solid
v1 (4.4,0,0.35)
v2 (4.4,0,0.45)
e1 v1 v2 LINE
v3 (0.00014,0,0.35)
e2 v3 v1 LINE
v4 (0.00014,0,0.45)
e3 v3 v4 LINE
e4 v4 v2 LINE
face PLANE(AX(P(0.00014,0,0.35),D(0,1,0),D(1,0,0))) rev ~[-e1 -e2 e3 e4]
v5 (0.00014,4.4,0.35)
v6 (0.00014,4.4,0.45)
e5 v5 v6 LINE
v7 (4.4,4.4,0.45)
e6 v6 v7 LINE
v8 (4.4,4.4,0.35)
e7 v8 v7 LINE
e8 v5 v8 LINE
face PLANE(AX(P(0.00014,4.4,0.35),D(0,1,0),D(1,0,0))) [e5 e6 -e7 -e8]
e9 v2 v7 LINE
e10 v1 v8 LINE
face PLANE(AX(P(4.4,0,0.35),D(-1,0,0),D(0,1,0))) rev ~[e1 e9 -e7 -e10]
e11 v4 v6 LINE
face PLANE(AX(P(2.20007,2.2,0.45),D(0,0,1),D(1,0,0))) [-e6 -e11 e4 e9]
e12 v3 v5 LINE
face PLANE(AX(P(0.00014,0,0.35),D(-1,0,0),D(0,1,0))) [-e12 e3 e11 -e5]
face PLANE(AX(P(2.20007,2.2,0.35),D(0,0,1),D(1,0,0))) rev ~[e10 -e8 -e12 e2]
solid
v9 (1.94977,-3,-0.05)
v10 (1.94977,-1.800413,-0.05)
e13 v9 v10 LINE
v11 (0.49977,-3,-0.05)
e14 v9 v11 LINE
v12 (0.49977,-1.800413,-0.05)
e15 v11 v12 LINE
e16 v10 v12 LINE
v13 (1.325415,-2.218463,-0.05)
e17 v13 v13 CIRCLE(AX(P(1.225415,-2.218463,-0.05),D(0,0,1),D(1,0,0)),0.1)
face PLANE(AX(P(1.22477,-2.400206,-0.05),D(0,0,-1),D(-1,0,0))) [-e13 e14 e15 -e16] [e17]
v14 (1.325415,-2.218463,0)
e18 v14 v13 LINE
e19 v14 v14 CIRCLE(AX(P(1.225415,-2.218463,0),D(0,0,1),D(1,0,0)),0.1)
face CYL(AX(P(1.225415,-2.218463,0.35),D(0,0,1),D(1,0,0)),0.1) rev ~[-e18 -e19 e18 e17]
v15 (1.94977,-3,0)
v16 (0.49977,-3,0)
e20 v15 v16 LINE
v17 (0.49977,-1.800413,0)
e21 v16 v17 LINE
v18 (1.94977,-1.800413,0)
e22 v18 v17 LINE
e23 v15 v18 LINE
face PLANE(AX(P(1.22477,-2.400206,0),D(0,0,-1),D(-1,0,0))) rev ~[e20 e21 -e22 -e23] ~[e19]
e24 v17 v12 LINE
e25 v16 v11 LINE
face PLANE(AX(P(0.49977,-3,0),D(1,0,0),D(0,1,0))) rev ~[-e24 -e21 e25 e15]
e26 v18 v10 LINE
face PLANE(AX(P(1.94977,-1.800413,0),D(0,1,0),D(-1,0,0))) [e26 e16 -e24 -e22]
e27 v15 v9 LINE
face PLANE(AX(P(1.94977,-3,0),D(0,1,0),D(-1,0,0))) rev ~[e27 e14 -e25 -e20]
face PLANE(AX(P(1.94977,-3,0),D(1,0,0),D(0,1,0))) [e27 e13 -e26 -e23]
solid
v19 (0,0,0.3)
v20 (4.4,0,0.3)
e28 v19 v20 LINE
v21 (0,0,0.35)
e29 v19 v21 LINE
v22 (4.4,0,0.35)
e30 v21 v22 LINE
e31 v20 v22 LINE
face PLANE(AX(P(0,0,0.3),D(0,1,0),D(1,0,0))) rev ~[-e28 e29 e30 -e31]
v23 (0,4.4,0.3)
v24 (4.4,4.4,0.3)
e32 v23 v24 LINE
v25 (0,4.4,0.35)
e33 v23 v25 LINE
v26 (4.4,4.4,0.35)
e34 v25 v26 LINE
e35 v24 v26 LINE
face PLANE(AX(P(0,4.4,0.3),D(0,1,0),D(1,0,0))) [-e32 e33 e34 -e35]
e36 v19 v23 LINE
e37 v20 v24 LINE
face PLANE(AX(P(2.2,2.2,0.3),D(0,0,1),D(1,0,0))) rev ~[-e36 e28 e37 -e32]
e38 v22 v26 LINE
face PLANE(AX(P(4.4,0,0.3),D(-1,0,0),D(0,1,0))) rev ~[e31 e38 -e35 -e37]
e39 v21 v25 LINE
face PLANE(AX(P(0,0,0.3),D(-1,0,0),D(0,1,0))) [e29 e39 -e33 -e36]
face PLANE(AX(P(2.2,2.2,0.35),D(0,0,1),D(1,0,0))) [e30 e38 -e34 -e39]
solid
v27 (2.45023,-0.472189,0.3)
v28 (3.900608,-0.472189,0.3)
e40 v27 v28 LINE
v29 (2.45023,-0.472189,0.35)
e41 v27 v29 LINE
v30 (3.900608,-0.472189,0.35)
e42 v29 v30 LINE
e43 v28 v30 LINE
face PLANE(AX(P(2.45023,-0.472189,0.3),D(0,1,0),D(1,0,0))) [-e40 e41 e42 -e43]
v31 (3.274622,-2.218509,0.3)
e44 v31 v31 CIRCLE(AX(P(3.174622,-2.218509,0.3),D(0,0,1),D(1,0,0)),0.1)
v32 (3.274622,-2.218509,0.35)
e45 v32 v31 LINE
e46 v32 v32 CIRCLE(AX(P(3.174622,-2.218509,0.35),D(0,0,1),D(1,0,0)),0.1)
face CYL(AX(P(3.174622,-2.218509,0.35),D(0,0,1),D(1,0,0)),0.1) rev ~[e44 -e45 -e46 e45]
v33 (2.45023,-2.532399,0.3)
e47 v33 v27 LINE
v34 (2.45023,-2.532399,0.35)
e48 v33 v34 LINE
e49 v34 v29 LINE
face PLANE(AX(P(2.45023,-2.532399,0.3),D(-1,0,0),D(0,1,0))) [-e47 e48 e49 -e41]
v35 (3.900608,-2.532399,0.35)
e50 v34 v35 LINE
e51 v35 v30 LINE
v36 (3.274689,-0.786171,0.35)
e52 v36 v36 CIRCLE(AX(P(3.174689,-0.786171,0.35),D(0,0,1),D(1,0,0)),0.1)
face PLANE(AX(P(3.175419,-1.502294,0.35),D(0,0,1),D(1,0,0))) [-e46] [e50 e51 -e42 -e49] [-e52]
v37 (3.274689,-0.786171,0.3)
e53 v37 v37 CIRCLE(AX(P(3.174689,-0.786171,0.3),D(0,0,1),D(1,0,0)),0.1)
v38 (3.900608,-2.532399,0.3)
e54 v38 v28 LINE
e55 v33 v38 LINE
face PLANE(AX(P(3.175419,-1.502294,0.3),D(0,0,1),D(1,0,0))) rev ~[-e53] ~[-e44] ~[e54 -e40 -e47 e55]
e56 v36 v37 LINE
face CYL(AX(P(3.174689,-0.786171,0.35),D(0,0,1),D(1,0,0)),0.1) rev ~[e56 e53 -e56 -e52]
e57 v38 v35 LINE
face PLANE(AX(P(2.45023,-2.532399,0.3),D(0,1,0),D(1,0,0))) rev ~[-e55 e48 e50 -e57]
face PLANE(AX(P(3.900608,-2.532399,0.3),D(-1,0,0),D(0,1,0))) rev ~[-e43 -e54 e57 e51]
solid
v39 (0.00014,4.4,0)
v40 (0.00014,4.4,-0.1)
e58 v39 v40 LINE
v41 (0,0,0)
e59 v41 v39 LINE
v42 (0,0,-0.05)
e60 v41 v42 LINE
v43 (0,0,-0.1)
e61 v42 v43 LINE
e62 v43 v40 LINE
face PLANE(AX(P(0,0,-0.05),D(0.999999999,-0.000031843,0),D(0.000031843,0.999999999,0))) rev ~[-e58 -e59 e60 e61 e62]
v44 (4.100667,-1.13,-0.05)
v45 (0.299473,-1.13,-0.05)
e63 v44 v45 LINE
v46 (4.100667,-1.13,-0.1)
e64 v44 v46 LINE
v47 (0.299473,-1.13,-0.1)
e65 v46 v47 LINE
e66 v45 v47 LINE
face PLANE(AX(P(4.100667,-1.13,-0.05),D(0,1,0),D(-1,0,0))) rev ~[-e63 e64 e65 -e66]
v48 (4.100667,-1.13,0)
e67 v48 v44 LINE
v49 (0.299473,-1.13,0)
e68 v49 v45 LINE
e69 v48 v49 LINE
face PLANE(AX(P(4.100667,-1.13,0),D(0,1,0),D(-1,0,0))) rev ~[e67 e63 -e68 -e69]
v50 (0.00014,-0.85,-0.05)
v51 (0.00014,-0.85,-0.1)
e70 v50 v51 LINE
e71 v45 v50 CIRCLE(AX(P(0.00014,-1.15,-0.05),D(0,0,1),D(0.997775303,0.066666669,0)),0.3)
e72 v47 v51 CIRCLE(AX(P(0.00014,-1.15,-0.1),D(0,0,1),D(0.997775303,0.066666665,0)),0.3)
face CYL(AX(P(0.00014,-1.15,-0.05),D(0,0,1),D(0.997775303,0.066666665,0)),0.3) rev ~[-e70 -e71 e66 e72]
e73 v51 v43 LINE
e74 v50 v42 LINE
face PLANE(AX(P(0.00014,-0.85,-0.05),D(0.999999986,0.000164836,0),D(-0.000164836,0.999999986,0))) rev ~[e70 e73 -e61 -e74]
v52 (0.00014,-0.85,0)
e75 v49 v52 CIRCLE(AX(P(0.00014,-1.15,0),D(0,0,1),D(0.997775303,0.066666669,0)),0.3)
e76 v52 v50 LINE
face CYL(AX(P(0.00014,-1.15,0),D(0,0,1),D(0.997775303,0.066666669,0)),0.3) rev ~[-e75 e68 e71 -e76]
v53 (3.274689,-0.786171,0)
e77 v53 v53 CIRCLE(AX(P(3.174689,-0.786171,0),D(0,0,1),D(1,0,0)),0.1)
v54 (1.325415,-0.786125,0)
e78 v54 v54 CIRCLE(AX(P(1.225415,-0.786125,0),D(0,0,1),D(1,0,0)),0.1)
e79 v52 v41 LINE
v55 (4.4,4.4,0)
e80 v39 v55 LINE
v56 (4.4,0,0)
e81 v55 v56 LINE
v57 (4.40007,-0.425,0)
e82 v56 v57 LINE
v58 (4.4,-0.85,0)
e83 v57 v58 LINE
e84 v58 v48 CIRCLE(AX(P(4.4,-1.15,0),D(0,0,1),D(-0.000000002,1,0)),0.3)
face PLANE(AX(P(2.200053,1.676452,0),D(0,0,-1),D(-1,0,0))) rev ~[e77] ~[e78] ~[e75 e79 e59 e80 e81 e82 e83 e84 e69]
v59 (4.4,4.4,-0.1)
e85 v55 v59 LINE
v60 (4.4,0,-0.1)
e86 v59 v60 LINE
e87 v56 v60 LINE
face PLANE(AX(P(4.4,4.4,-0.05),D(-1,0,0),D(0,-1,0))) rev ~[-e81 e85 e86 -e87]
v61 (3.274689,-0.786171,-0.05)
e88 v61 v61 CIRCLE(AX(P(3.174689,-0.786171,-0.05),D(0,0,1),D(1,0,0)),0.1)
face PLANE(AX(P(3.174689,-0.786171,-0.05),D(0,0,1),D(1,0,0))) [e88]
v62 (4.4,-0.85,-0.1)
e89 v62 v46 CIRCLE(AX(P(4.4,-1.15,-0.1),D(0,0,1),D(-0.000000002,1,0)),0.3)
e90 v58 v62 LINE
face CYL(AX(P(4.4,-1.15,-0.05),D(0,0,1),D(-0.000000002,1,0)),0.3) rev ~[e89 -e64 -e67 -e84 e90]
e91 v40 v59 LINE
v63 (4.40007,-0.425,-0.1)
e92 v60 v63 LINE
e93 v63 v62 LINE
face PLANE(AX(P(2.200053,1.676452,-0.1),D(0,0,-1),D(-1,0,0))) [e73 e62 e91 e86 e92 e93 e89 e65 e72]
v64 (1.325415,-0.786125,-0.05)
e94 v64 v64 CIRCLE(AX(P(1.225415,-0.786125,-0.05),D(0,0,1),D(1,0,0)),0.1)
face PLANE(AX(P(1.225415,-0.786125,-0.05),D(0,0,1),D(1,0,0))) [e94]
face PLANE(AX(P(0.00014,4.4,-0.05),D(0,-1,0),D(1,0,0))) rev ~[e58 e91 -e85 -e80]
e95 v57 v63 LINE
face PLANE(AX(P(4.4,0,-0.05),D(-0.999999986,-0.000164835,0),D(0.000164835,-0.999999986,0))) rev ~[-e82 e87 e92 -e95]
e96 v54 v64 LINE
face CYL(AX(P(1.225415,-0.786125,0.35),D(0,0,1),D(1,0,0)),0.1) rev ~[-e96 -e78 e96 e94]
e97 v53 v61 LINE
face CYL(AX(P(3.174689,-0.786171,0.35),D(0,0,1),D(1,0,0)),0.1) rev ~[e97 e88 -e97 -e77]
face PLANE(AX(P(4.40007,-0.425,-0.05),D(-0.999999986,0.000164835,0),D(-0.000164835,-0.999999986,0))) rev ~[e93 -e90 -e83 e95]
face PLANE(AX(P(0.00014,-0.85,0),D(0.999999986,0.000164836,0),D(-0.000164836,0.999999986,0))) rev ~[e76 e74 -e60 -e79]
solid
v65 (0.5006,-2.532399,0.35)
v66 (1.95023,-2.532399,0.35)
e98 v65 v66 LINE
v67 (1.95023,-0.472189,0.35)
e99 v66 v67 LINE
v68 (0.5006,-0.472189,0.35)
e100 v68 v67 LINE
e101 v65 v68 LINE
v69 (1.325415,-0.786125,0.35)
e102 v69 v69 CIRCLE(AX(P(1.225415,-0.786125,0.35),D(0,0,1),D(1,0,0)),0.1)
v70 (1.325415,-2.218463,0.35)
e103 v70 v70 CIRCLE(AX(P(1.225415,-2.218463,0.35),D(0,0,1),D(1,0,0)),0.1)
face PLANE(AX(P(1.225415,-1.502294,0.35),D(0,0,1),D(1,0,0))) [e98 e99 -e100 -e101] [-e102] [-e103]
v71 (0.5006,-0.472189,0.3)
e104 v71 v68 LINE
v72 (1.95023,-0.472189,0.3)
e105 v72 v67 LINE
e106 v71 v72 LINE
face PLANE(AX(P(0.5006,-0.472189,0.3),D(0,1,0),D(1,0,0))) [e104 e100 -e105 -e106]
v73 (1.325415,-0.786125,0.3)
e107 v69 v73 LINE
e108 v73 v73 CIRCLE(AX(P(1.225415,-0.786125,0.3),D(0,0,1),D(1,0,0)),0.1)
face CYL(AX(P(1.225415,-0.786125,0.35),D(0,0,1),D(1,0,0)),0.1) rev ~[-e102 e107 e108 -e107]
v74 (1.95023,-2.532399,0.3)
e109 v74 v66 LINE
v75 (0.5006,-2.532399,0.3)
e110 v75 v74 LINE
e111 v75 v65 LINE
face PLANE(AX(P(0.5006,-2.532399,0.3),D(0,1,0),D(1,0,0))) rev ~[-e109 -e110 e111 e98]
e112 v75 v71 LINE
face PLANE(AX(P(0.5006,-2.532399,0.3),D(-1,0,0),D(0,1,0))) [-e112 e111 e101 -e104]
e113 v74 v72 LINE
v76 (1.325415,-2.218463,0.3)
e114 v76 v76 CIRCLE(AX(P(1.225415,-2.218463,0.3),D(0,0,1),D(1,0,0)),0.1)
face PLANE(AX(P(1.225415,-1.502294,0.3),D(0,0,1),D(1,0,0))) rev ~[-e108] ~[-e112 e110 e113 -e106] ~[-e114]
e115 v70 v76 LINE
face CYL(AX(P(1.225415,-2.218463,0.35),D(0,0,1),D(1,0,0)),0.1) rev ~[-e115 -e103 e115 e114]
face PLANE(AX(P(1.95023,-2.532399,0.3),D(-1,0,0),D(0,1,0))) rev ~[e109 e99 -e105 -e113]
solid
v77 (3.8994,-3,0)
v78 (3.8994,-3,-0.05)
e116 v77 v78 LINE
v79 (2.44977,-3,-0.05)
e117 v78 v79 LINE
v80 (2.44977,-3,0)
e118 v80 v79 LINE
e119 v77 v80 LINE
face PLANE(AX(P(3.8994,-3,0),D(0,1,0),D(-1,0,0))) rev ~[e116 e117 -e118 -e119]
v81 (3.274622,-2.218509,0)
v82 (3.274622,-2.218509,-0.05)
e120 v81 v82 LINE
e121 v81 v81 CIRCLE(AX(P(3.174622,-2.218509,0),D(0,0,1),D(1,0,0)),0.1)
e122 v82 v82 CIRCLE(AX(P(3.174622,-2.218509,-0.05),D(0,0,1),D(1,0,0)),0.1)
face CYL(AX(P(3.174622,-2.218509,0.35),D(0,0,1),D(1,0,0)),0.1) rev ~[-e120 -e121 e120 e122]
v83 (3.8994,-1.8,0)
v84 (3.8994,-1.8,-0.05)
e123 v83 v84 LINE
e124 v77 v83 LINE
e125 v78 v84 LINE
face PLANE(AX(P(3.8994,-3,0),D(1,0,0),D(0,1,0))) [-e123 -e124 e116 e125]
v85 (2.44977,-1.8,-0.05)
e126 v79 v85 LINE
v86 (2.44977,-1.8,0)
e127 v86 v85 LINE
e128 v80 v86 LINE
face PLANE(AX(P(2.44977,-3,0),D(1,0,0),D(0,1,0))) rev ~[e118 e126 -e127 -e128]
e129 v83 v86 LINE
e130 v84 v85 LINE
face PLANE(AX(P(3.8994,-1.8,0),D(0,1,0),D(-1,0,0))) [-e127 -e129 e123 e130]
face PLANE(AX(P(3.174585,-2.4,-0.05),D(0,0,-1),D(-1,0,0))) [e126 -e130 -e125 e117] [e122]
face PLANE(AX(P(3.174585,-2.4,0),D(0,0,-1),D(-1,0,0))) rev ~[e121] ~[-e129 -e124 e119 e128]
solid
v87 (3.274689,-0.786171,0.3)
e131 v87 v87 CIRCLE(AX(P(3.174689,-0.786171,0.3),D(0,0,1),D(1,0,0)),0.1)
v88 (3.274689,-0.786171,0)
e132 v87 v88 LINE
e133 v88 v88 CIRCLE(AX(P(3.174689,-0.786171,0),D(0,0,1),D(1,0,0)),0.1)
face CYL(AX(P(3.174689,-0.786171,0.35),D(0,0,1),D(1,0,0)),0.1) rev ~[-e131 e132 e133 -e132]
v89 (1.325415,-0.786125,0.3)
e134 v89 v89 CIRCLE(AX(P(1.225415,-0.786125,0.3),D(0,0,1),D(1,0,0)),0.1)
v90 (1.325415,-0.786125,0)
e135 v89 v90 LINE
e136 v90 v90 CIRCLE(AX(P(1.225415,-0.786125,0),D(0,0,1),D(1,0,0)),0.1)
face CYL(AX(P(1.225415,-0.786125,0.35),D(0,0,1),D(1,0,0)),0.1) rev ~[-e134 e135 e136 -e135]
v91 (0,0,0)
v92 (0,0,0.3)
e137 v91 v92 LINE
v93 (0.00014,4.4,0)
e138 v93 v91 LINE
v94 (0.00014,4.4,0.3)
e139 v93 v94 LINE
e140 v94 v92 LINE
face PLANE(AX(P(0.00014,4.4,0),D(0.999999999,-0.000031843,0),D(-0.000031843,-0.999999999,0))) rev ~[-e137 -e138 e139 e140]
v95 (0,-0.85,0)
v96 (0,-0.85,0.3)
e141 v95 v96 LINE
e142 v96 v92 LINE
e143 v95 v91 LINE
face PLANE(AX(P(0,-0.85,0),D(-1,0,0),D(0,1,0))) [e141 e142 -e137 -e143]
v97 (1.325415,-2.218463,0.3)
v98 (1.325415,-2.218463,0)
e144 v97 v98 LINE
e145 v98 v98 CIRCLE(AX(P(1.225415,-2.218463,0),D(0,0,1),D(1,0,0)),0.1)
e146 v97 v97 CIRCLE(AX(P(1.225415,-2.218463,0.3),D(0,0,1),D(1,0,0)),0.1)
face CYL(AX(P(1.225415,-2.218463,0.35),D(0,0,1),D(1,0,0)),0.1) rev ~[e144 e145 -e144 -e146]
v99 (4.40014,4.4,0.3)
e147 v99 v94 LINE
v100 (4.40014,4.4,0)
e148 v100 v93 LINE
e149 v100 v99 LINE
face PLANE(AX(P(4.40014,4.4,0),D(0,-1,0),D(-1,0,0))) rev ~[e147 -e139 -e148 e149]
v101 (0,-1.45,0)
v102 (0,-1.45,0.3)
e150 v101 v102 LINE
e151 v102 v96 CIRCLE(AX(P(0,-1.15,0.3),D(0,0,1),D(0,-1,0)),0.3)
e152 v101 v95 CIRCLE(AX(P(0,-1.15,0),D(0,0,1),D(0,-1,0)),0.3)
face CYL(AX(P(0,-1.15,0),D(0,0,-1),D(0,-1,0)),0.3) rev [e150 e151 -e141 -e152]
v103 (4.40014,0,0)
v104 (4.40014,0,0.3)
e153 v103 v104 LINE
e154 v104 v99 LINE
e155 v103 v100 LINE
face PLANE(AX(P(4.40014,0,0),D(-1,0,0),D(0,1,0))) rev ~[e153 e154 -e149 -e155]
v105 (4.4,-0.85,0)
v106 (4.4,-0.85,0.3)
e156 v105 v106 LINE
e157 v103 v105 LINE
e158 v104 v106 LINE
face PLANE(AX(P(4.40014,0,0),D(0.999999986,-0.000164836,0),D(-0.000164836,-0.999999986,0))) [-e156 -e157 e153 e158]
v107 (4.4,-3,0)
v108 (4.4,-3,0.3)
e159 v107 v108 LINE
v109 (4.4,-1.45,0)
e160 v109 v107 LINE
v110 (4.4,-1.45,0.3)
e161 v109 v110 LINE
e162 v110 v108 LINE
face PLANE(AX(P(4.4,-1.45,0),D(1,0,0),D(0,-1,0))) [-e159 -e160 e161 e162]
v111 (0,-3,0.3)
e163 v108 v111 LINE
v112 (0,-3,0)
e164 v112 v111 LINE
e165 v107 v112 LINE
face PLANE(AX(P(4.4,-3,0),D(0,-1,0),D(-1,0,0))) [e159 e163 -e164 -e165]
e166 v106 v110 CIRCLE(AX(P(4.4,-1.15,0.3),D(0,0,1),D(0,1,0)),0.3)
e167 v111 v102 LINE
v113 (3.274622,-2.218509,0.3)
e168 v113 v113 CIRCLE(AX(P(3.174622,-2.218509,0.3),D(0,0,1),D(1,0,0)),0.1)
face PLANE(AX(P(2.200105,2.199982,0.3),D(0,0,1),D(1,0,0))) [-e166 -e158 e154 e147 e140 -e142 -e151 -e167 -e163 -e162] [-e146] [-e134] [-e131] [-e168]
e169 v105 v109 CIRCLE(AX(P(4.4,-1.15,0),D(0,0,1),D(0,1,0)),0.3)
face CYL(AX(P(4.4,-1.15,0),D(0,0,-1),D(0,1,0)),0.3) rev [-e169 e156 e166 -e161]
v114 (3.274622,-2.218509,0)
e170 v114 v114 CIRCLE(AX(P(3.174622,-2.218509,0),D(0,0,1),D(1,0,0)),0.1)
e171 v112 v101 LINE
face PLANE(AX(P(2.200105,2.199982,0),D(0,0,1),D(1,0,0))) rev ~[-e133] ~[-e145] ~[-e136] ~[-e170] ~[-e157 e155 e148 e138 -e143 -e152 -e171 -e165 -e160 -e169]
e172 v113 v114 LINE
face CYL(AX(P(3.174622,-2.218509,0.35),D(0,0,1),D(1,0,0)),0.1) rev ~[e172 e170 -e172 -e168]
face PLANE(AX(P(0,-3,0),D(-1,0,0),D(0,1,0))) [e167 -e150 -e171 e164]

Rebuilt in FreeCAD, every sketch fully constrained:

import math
import FreeCAD as App
import Part
import Sketcher
from FreeCAD import Vector
Q = App.Units.Quantity

doc = App.newDocument("Part")
body = doc.addObject("PartDesign::Body", "Body")

sketch1 = body.newObject("Sketcher::SketchObject", "Sketch")
sketch1.AttachmentSupport = (doc.getObject("XY_Plane"), [""])
sketch1.MapMode = "FlatFace"
sketch1.addGeometry(Part.LineSegment(Vector(0, 4.4, 0), Vector(0, 0, 0)), False)
sketch1.addGeometry(Part.LineSegment(Vector(0, 0, 0), Vector(0, -0.85, 0)), False)
sketch1.addGeometry(Part.ArcOfCircle(Part.Circle(Vector(0, -1.15, 0), Vector(0, 0, 1), 0.3), math.radians(-90), math.radians(90)), False)
sketch1.addGeometry(Part.LineSegment(Vector(0, -1.45, 0), Vector(0, -3, 0)), False)
sketch1.addGeometry(Part.LineSegment(Vector(0, -3, 0), Vector(4.4, -3, 0)), False)
sketch1.addGeometry(Part.LineSegment(Vector(4.4, -3, 0), Vector(4.4, -1.45, 0)), False)
sketch1.addGeometry(Part.ArcOfCircle(Part.Circle(Vector(4.4, -1.15, 0), Vector(0, 0, 1), 0.3), math.radians(90), math.radians(270)), False)
sketch1.addGeometry(Part.LineSegment(Vector(4.4, -0.85, 0), Vector(4.4, 0, 0)), False)
sketch1.addGeometry(Part.LineSegment(Vector(4.4, 0, 0), Vector(4.4, 4.4, 0)), False)
sketch1.addGeometry(Part.LineSegment(Vector(4.4, 4.4, 0), Vector(0, 4.4, 0)), False)
sketch1.addConstraint(Sketcher.Constraint("Coincident", 0, 2, 1, 1))
sketch1.addConstraint(Sketcher.Constraint("Coincident", 1, 2, 2, 2))
sketch1.addConstraint(Sketcher.Constraint("Coincident", 2, 1, 3, 1))
sketch1.addConstraint(Sketcher.Constraint("Coincident", 3, 2, 4, 1))
sketch1.addConstraint(Sketcher.Constraint("Coincident", 4, 2, 5, 1))
sketch1.addConstraint(Sketcher.Constraint("Coincident", 5, 2, 6, 2))
sketch1.addConstraint(Sketcher.Constraint("Coincident", 6, 1, 7, 1))
sketch1.addConstraint(Sketcher.Constraint("Coincident", 7, 2, 8, 1))
sketch1.addConstraint(Sketcher.Constraint("Coincident", 8, 2, 9, 1))
sketch1.addConstraint(Sketcher.Constraint("Coincident", 9, 2, 0, 1))
sketch1.addConstraint(Sketcher.Constraint("Vertical", 1))
sketch1.addConstraint(Sketcher.Constraint("Vertical", 3))
sketch1.addConstraint(Sketcher.Constraint("Horizontal", 4))
sketch1.addConstraint(Sketcher.Constraint("Vertical", 5))
sketch1.addConstraint(Sketcher.Constraint("Vertical", 8))
sketch1.addConstraint(Sketcher.Constraint("Horizontal", 9))
sketch1.addConstraint(Sketcher.Constraint("Coincident", 0, 2, -1, 1))
sketch1.addConstraint(Sketcher.Constraint("Equal", 2, 6))
sketch1.addConstraint(Sketcher.Constraint("PointOnObject", 2, 3, -2))
sketch1.addConstraint(Sketcher.Constraint("PointOnObject", 2, 1, -2))
sketch1.addConstraint(Sketcher.Constraint("PointOnObject", 7, 2, -1))
sketch1.addConstraint(Sketcher.Constraint("Horizontal", 2, 3, 6, 3))
sketch1.addConstraint(Sketcher.Constraint("Vertical", 6, 3, 4, 2))
sketch1.addConstraint(Sketcher.Constraint("Vertical", 5, 2, 6, 1))
sketch1.addConstraint(Sketcher.Constraint("Equal", 4, 9))
sketch1.addConstraint(Sketcher.Constraint("Equal", 9, 8))
sketch1.addConstraint(Sketcher.Constraint("Radius", 2, Q("0.3 mm")))
sketch1.addConstraint(Sketcher.Constraint("DistanceX", 4, 1, 4, 2, Q("4.4 mm")))
sketch1.addConstraint(Sketcher.Constraint("DistanceY", 3, 2, -1, 1, Q("3 mm")))
sketch1.addConstraint(Sketcher.Constraint("DistanceY", 1, 2, 1, 1, Q("0.85 mm")))
sketch1.addConstraint(Sketcher.Constraint("DistanceX", -1, 1, 7, 2, Q("4.40014 mm")))
pad1 = body.newObject("PartDesign::Pad", "Pad")
pad1.Profile = sketch1
pad1.Length = 0.3
body2 = doc.addObject("PartDesign::Body", "Body001")

sketch2 = body2.newObject("Sketcher::SketchObject", "Sketch001")
sketch2.AttachmentSupport = (doc.getObject("XY_Plane001"), [""])
sketch2.MapMode = "FlatFace"
sketch2.addGeometry(Part.LineSegment(Vector(4.1, -1.13, 0), Vector(0.3, -1.13, 0)), False)
sketch2.addGeometry(Part.ArcOfCircle(Part.Circle(Vector(0, -1.15, 0), Vector(0, 0, 1), 0.3), math.radians(4), math.radians(90)), False)
sketch2.addGeometry(Part.LineSegment(Vector(0, -0.85, 0), Vector(0, 0, 0)), False)
sketch2.addGeometry(Part.LineSegment(Vector(0, 0, 0), Vector(0, 4.4, 0)), False)
sketch2.addGeometry(Part.LineSegment(Vector(0, 4.4, 0), Vector(4.4, 4.4, 0)), False)
sketch2.addGeometry(Part.LineSegment(Vector(4.4, 4.4, 0), Vector(4.4, 0, 0)), False)
sketch2.addGeometry(Part.LineSegment(Vector(4.4, 0, 0), Vector(4.4, -0.42, 0)), False)
sketch2.addGeometry(Part.LineSegment(Vector(4.4, -0.42, 0), Vector(4.4, -0.85, 0)), False)
sketch2.addGeometry(Part.ArcOfCircle(Part.Circle(Vector(4.4, -1.15, 0), Vector(0, 0, 1), 0.3), math.radians(90), math.radians(176)), False)
sketch2.addConstraint(Sketcher.Constraint("Coincident", 0, 2, 1, 1))
sketch2.addConstraint(Sketcher.Constraint("Coincident", 1, 2, 2, 1))
sketch2.addConstraint(Sketcher.Constraint("Coincident", 2, 2, 3, 1))
sketch2.addConstraint(Sketcher.Constraint("Coincident", 3, 2, 4, 1))
sketch2.addConstraint(Sketcher.Constraint("Coincident", 4, 2, 5, 1))
sketch2.addConstraint(Sketcher.Constraint("Coincident", 5, 2, 6, 1))
sketch2.addConstraint(Sketcher.Constraint("Coincident", 6, 2, 7, 1))
sketch2.addConstraint(Sketcher.Constraint("Coincident", 7, 2, 8, 1))
sketch2.addConstraint(Sketcher.Constraint("Coincident", 8, 2, 0, 1))
sketch2.addConstraint(Sketcher.Constraint("Horizontal", 0))
sketch2.addConstraint(Sketcher.Constraint("Horizontal", 4))
sketch2.addConstraint(Sketcher.Constraint("Vertical", 5))
sketch2.addConstraint(Sketcher.Constraint("Coincident", 2, 2, -1, 1))
sketch2.addConstraint(Sketcher.Constraint("Equal", 1, 8))
sketch2.addConstraint(Sketcher.Constraint("PointOnObject", 5, 2, -1))
sketch2.addConstraint(Sketcher.Constraint("Parallel", 2, 6))
sketch2.addConstraint(Sketcher.Constraint("Horizontal", 1, 3, 8, 3))
sketch2.addConstraint(Sketcher.Constraint("Vertical", 1, 2, 3, 2))
sketch2.addConstraint(Sketcher.Constraint("Vertical", 8, 3, 4, 2))
sketch2.addConstraint(Sketcher.Constraint("Vertical", 5, 2, 7, 2))
sketch2.addConstraint(Sketcher.Constraint("Equal", 6, 7))
sketch2.addConstraint(Sketcher.Constraint("Radius", 1, Q("0.3 mm")))
sketch2.addConstraint(Sketcher.Constraint("DistanceY", 5, 2, 5, 1, Q("4.4 mm")))
sketch2.addConstraint(Sketcher.Constraint("DistanceX", -1, 1, 8, 3, Q("4.4 mm")))
sketch2.addConstraint(Sketcher.Constraint("Distance", 2, Q("0.85 mm")))
sketch2.addConstraint(Sketcher.Constraint("DistanceY", 0, 2, -1, 1, Q("1.13 mm")))
sketch2.addConstraint(Sketcher.Constraint("DistanceX", 4, 1, 4, 2, Q("4.39986 mm")))
sketch2.addConstraint(Sketcher.Constraint("DistanceX", 0, 2, 0, 1, Q("3.801195 mm")))
pad2 = body2.newObject("PartDesign::Pad", "Pad001")
pad2.Profile = sketch2
pad2.Length = 0.05
pad2.Reversed = True

sketch3 = body2.newObject("Sketcher::SketchObject", "Sketch002")
sketch3.AttachmentSupport = (doc.getObject("XY_Plane001"), [""])
sketch3.MapMode = "FlatFace"
sketch3.AttachmentOffset = App.Placement(Vector(0, 0, -0.05), App.Rotation())
sketch3.addGeometry(Part.LineSegment(Vector(0, -0.85, 0), Vector(0, 0, 0)), False)
sketch3.addGeometry(Part.LineSegment(Vector(0, 0, 0), Vector(0, 4.4, 0)), False)
sketch3.addGeometry(Part.LineSegment(Vector(0, 4.4, 0), Vector(4.4, 4.4, 0)), False)
sketch3.addGeometry(Part.LineSegment(Vector(4.4, 4.4, 0), Vector(4.4, 0, 0)), False)
sketch3.addGeometry(Part.LineSegment(Vector(4.4, 0, 0), Vector(4.4, -0.42, 0)), False)
sketch3.addGeometry(Part.LineSegment(Vector(4.4, -0.42, 0), Vector(4.4, -0.85, 0)), False)
sketch3.addGeometry(Part.ArcOfCircle(Part.Circle(Vector(4.4, -1.15, 0), Vector(0, 0, 1), 0.3), math.radians(90), math.radians(176)), False)
sketch3.addGeometry(Part.LineSegment(Vector(4.1, -1.13, 0), Vector(0.3, -1.13, 0)), False)
sketch3.addGeometry(Part.ArcOfCircle(Part.Circle(Vector(0, -1.15, 0), Vector(0, 0, 1), 0.3), math.radians(4), math.radians(90)), False)
sketch3.addConstraint(Sketcher.Constraint("Coincident", 0, 2, 1, 1))
sketch3.addConstraint(Sketcher.Constraint("Coincident", 1, 2, 2, 1))
sketch3.addConstraint(Sketcher.Constraint("Coincident", 2, 2, 3, 1))
sketch3.addConstraint(Sketcher.Constraint("Coincident", 3, 2, 4, 1))
sketch3.addConstraint(Sketcher.Constraint("Coincident", 4, 2, 5, 1))
sketch3.addConstraint(Sketcher.Constraint("Coincident", 5, 2, 6, 1))
sketch3.addConstraint(Sketcher.Constraint("Coincident", 6, 2, 7, 1))
sketch3.addConstraint(Sketcher.Constraint("Coincident", 7, 2, 8, 1))
sketch3.addConstraint(Sketcher.Constraint("Coincident", 8, 2, 0, 1))
sketch3.addConstraint(Sketcher.Constraint("Horizontal", 2))
sketch3.addConstraint(Sketcher.Constraint("Vertical", 3))
sketch3.addConstraint(Sketcher.Constraint("Horizontal", 7))
sketch3.addConstraint(Sketcher.Constraint("Coincident", 0, 2, -1, 1))
sketch3.addConstraint(Sketcher.Constraint("Equal", 6, 8))
sketch3.addConstraint(Sketcher.Constraint("PointOnObject", 3, 2, -1))
sketch3.addConstraint(Sketcher.Constraint("Parallel", 0, 4))
sketch3.addConstraint(Sketcher.Constraint("Horizontal", 6, 3, 8, 3))
sketch3.addConstraint(Sketcher.Constraint("Vertical", 8, 3, 1, 2))
sketch3.addConstraint(Sketcher.Constraint("Vertical", 6, 3, 2, 2))
sketch3.addConstraint(Sketcher.Constraint("Vertical", 3, 2, 5, 2))
sketch3.addConstraint(Sketcher.Constraint("Vertical", 1, 2, 8, 2))
sketch3.addConstraint(Sketcher.Constraint("Equal", 4, 5))
sketch3.addConstraint(Sketcher.Constraint("Radius", 6, Q("0.3 mm")))
sketch3.addConstraint(Sketcher.Constraint("DistanceY", 3, 2, 3, 1, Q("4.4 mm")))
sketch3.addConstraint(Sketcher.Constraint("DistanceX", -1, 1, 6, 3, Q("4.4 mm")))
sketch3.addConstraint(Sketcher.Constraint("Distance", 0, Q("0.85 mm")))
sketch3.addConstraint(Sketcher.Constraint("DistanceY", 6, 2, -1, 1, Q("1.13 mm")))
sketch3.addConstraint(Sketcher.Constraint("DistanceX", 2, 1, 2, 2, Q("4.39986 mm")))
pad3 = body2.newObject("PartDesign::Pad", "Pad002")
pad3.Profile = sketch3
pad3.Length = 0.05
pad3.Reversed = True
body3 = doc.addObject("PartDesign::Body", "Body002")

sketch4 = body3.newObject("Sketcher::SketchObject", "Sketch003")
sketch4.AttachmentSupport = (doc.getObject("XY_Plane002"), [""])
sketch4.MapMode = "FlatFace"
sketch4.addGeometry(Part.LineSegment(Vector(3.9, -1.8, 0), Vector(3.9, -3, 0)), False)
sketch4.addGeometry(Part.LineSegment(Vector(3.9, -3, 0), Vector(2.4, -3, 0)), False)
sketch4.addGeometry(Part.LineSegment(Vector(2.4, -3, 0), Vector(2.4, -1.8, 0)), False)
sketch4.addGeometry(Part.LineSegment(Vector(2.4, -1.8, 0), Vector(3.9, -1.8, 0)), False)
sketch4.addConstraint(Sketcher.Constraint("Coincident", 0, 2, 1, 1))
sketch4.addConstraint(Sketcher.Constraint("Coincident", 1, 2, 2, 1))
sketch4.addConstraint(Sketcher.Constraint("Coincident", 2, 2, 3, 1))
sketch4.addConstraint(Sketcher.Constraint("Coincident", 3, 2, 0, 1))
sketch4.addConstraint(Sketcher.Constraint("Vertical", 0))
sketch4.addConstraint(Sketcher.Constraint("Horizontal", 1))
sketch4.addConstraint(Sketcher.Constraint("Vertical", 2))
sketch4.addConstraint(Sketcher.Constraint("Horizontal", 3))
sketch4.addConstraint(Sketcher.Constraint("DistanceY", 0, 2, 0, 1, Q("1.2 mm")))
sketch4.addConstraint(Sketcher.Constraint("DistanceY", 0, 2, -1, 1, Q("3 mm")))
sketch4.addConstraint(Sketcher.Constraint("DistanceX", 1, 2, 1, 1, Q("1.44963 mm")))
sketch4.addConstraint(Sketcher.Constraint("DistanceX", -1, 1, 0, 2, Q("3.8994 mm")))
pad4 = body3.newObject("PartDesign::Pad", "Pad003")
pad4.Profile = sketch4
pad4.Length = 0.05
pad4.Reversed = True
body4 = doc.addObject("PartDesign::Body", "Body003")

sketch5 = body4.newObject("Sketcher::SketchObject", "Sketch004")
sketch5.AttachmentSupport = (doc.getObject("XY_Plane003"), [""])
sketch5.MapMode = "FlatFace"
sketch5.addGeometry(Part.LineSegment(Vector(1.9, -1.8, 0), Vector(1.9, -3, 0)), False)
sketch5.addGeometry(Part.LineSegment(Vector(1.9, -3, 0), Vector(0.5, -3, 0)), False)
sketch5.addGeometry(Part.LineSegment(Vector(0.5, -3, 0), Vector(0.5, -1.8, 0)), False)
sketch5.addGeometry(Part.LineSegment(Vector(0.5, -1.8, 0), Vector(1.9, -1.8, 0)), False)
sketch5.addConstraint(Sketcher.Constraint("Coincident", 0, 2, 1, 1))
sketch5.addConstraint(Sketcher.Constraint("Coincident", 1, 2, 2, 1))
sketch5.addConstraint(Sketcher.Constraint("Coincident", 2, 2, 3, 1))
sketch5.addConstraint(Sketcher.Constraint("Coincident", 3, 2, 0, 1))
sketch5.addConstraint(Sketcher.Constraint("Vertical", 0))
sketch5.addConstraint(Sketcher.Constraint("Horizontal", 1))
sketch5.addConstraint(Sketcher.Constraint("Vertical", 2))
sketch5.addConstraint(Sketcher.Constraint("Horizontal", 3))
sketch5.addConstraint(Sketcher.Constraint("DistanceY", 0, 2, -1, 1, Q("3 mm")))
sketch5.addConstraint(Sketcher.Constraint("DistanceX", 1, 2, 1, 1, Q("1.45 mm")))
sketch5.addConstraint(Sketcher.Constraint("DistanceY", 0, 2, 0, 1, Q("1.199587 mm")))
sketch5.addConstraint(Sketcher.Constraint("DistanceX", -1, 1, 0, 2, Q("1.94977 mm")))
pad5 = body4.newObject("PartDesign::Pad", "Pad004")
pad5.Profile = sketch5
pad5.Length = 0.05
pad5.Reversed = True
body5 = doc.addObject("PartDesign::Body", "Body004")

sketch6 = body5.newObject("Sketcher::SketchObject", "Sketch005")
sketch6.AttachmentSupport = (doc.getObject("XY_Plane004"), [""])
sketch6.MapMode = "FlatFace"
sketch6.AttachmentOffset = App.Placement(Vector(0, 0, 0.3), App.Rotation())
sketch6.addGeometry(Part.LineSegment(Vector(2.5, -0.5, 0), Vector(2.5, -2.5, 0)), False)
sketch6.addGeometry(Part.LineSegment(Vector(2.5, -2.5, 0), Vector(3.9, -2.5, 0)), False)
sketch6.addGeometry(Part.LineSegment(Vector(3.9, -2.5, 0), Vector(3.9, -0.5, 0)), False)
sketch6.addGeometry(Part.LineSegment(Vector(3.9, -0.5, 0), Vector(2.5, -0.5, 0)), False)
sketch6.addConstraint(Sketcher.Constraint("Coincident", 0, 2, 1, 1))
sketch6.addConstraint(Sketcher.Constraint("Coincident", 1, 2, 2, 1))
sketch6.addConstraint(Sketcher.Constraint("Coincident", 2, 2, 3, 1))
sketch6.addConstraint(Sketcher.Constraint("Coincident", 3, 2, 0, 1))
sketch6.addConstraint(Sketcher.Constraint("Vertical", 0))
sketch6.addConstraint(Sketcher.Constraint("Horizontal", 1))
sketch6.addConstraint(Sketcher.Constraint("Vertical", 2))
sketch6.addConstraint(Sketcher.Constraint("Horizontal", 3))
sketch6.addConstraint(Sketcher.Constraint("DistanceX", 1, 1, 1, 2, Q("1.450378 mm")))
sketch6.addConstraint(Sketcher.Constraint("DistanceY", 0, 2, 0, 1, Q("2.060211 mm")))
sketch6.addConstraint(Sketcher.Constraint("DistanceY", 0, 2, -1, 1, Q("2.532399 mm")))
sketch6.addConstraint(Sketcher.Constraint("DistanceX", -1, 1, 0, 2, Q("2.45023 mm")))
pad6 = body5.newObject("PartDesign::Pad", "Pad005")
pad6.Profile = sketch6
pad6.Length = 0.05
body6 = doc.addObject("PartDesign::Body", "Body005")

sketch7 = body6.newObject("Sketcher::SketchObject", "Sketch006")
sketch7.AttachmentSupport = (doc.getObject("XY_Plane005"), [""])
sketch7.MapMode = "FlatFace"
sketch7.AttachmentOffset = App.Placement(Vector(0, 0, 0.3), App.Rotation())
sketch7.addGeometry(Part.LineSegment(Vector(0.5, -0.5, 0), Vector(0.5, -2.5, 0)), False)
sketch7.addGeometry(Part.LineSegment(Vector(0.5, -2.5, 0), Vector(2, -2.5, 0)), False)
sketch7.addGeometry(Part.LineSegment(Vector(2, -2.5, 0), Vector(2, -0.5, 0)), False)
sketch7.addGeometry(Part.LineSegment(Vector(2, -0.5, 0), Vector(0.5, -0.5, 0)), False)
sketch7.addConstraint(Sketcher.Constraint("Coincident", 0, 2, 1, 1))
sketch7.addConstraint(Sketcher.Constraint("Coincident", 1, 2, 2, 1))
sketch7.addConstraint(Sketcher.Constraint("Coincident", 2, 2, 3, 1))
sketch7.addConstraint(Sketcher.Constraint("Coincident", 3, 2, 0, 1))
sketch7.addConstraint(Sketcher.Constraint("Vertical", 0))
sketch7.addConstraint(Sketcher.Constraint("Horizontal", 1))
sketch7.addConstraint(Sketcher.Constraint("Vertical", 2))
sketch7.addConstraint(Sketcher.Constraint("Horizontal", 3))
sketch7.addConstraint(Sketcher.Constraint("DistanceX", 1, 1, 1, 2, Q("1.44963 mm")))
sketch7.addConstraint(Sketcher.Constraint("DistanceY", 0, 2, 0, 1, Q("2.060211 mm")))
sketch7.addConstraint(Sketcher.Constraint("DistanceX", -1, 1, 0, 2, Q("0.5006 mm")))
sketch7.addConstraint(Sketcher.Constraint("DistanceY", 0, 2, -1, 1, Q("2.532399 mm")))
pad7 = body6.newObject("PartDesign::Pad", "Pad006")
pad7.Profile = sketch7
pad7.Length = 0.05
body7 = doc.addObject("PartDesign::Body", "Body006")

sketch8 = body7.newObject("Sketcher::SketchObject", "Sketch007")
sketch8.AttachmentSupport = (doc.getObject("XY_Plane006"), [""])
sketch8.MapMode = "FlatFace"
sketch8.AttachmentOffset = App.Placement(Vector(0, 0, 0.3), App.Rotation())
sketch8.addGeometry(Part.LineSegment(Vector(0, 4.4, 0), Vector(0, 0, 0)), False)
sketch8.addGeometry(Part.LineSegment(Vector(0, 0, 0), Vector(4.4, 0, 0)), False)
sketch8.addGeometry(Part.LineSegment(Vector(4.4, 0, 0), Vector(4.4, 4.4, 0)), False)
sketch8.addGeometry(Part.LineSegment(Vector(4.4, 4.4, 0), Vector(0, 4.4, 0)), False)
sketch8.addConstraint(Sketcher.Constraint("Coincident", 0, 2, 1, 1))
sketch8.addConstraint(Sketcher.Constraint("Coincident", 1, 2, 2, 1))
sketch8.addConstraint(Sketcher.Constraint("Coincident", 2, 2, 3, 1))
sketch8.addConstraint(Sketcher.Constraint("Coincident", 3, 2, 0, 1))
sketch8.addConstraint(Sketcher.Constraint("Vertical", 0))
sketch8.addConstraint(Sketcher.Constraint("Horizontal", 1))
sketch8.addConstraint(Sketcher.Constraint("Vertical", 2))
sketch8.addConstraint(Sketcher.Constraint("Horizontal", 3))
sketch8.addConstraint(Sketcher.Constraint("Coincident", 0, 2, -1, 1))
sketch8.addConstraint(Sketcher.Constraint("Equal", 3, 0))
sketch8.addConstraint(Sketcher.Constraint("DistanceX", 1, 1, 1, 2, Q("4.4 mm")))
pad8 = body7.newObject("PartDesign::Pad", "Pad007")
pad8.Profile = sketch8
pad8.Length = 0.05
body8 = doc.addObject("PartDesign::Body", "Body007")

sketch9 = body8.newObject("Sketcher::SketchObject", "Sketch008")
sketch9.AttachmentSupport = (doc.getObject("XY_Plane007"), [""])
sketch9.MapMode = "FlatFace"
sketch9.AttachmentOffset = App.Placement(Vector(0, 0, 0.35), App.Rotation())
sketch9.addGeometry(Part.LineSegment(Vector(0, 4.4, 0), Vector(0, 0, 0)), False)
sketch9.addGeometry(Part.LineSegment(Vector(0, 0, 0), Vector(4.4, 0, 0)), False)
sketch9.addGeometry(Part.LineSegment(Vector(4.4, 0, 0), Vector(4.4, 4.4, 0)), False)
sketch9.addGeometry(Part.LineSegment(Vector(4.4, 4.4, 0), Vector(0, 4.4, 0)), False)
sketch9.addConstraint(Sketcher.Constraint("Coincident", 0, 2, 1, 1))
sketch9.addConstraint(Sketcher.Constraint("Coincident", 1, 2, 2, 1))
sketch9.addConstraint(Sketcher.Constraint("Coincident", 2, 2, 3, 1))
sketch9.addConstraint(Sketcher.Constraint("Coincident", 3, 2, 0, 1))
sketch9.addConstraint(Sketcher.Constraint("Vertical", 0))
sketch9.addConstraint(Sketcher.Constraint("Horizontal", 1))
sketch9.addConstraint(Sketcher.Constraint("Vertical", 2))
sketch9.addConstraint(Sketcher.Constraint("Horizontal", 3))
sketch9.addConstraint(Sketcher.Constraint("PointOnObject", 0, 2, -1))
sketch9.addConstraint(Sketcher.Constraint("DistanceY", 0, 2, 0, 1, Q("4.4 mm")))
sketch9.addConstraint(Sketcher.Constraint("DistanceX", -1, 1, 1, 2, Q("4.4 mm")))
sketch9.addConstraint(Sketcher.Constraint("DistanceX", 1, 1, 1, 2, Q("4.39986 mm")))
pad9 = body8.newObject("PartDesign::Pad", "Pad008")
pad9.Profile = sketch9
pad9.Length = 0.1
body9 = doc.addObject("PartDesign::Body", "Body008")
body9.AllowCompound = True

sketch10 = body9.newObject("Sketcher::SketchObject", "Sketch009")
sketch10.AttachmentSupport = (doc.getObject("XY_Plane008"), [""])
sketch10.MapMode = "FlatFace"
sketch10.AttachmentOffset = App.Placement(Vector(0, 0, 0.35), App.Rotation())
sketch10.addGeometry(Part.Circle(Vector(1.23, -0.79, 0), Vector(0, 0, 1), 0.1), False)
sketch10.addGeometry(Part.Circle(Vector(1.23, -2.22, 0), Vector(0, 0, 1), 0.1), False)
sketch10.addGeometry(Part.Circle(Vector(3.17, -2.22, 0), Vector(0, 0, 1), 0.1), False)
sketch10.addGeometry(Part.Circle(Vector(3.17, -0.79, 0), Vector(0, 0, 1), 0.1), False)
sketch10.addConstraint(Sketcher.Constraint("Equal", 0, 1))
sketch10.addConstraint(Sketcher.Constraint("Equal", 1, 2))
sketch10.addConstraint(Sketcher.Constraint("Equal", 2, 3))
sketch10.addConstraint(Sketcher.Constraint("Vertical", 0, 3, 1, 3))
sketch10.addConstraint(Sketcher.Constraint("Diameter", 0, Q("0.2 mm")))
sketch10.addConstraint(Sketcher.Constraint("DistanceX", -1, 1, 2, 3, Q("3.174622 mm")))
sketch10.addConstraint(Sketcher.Constraint("DistanceY", 2, 3, -1, 1, Q("2.218509 mm")))
sketch10.addConstraint(Sketcher.Constraint("DistanceX", -1, 1, 3, 3, Q("3.174689 mm")))
sketch10.addConstraint(Sketcher.Constraint("DistanceY", 3, 3, -1, 1, Q("0.786171 mm")))
sketch10.addConstraint(Sketcher.Constraint("DistanceY", 1, 3, 0, 3, Q("1.432338 mm")))
sketch10.addConstraint(Sketcher.Constraint("DistanceX", -1, 1, 0, 3, Q("1.225415 mm")))
sketch10.addConstraint(Sketcher.Constraint("DistanceY", 0, 3, -1, 1, Q("0.786125 mm")))
pad10 = body9.newObject("PartDesign::Pad", "Pad009")
pad10.Profile = sketch10
pad10.Length = 0.4
pad10.Reversed = True
doc.recompute()

body10 = doc.addObject("PartDesign::Body", "Body009")
body10.BaseFeature = body9
boolean = body.newObject("PartDesign::Boolean", "Boolean")
boolean.Type = "Cut"
boolean.addObjects([body10])
doc.recompute()

body11 = doc.addObject("PartDesign::Body", "Body010")
body11.BaseFeature = body9
boolean2 = body2.newObject("PartDesign::Boolean", "Boolean001")
boolean2.Type = "Cut"
boolean2.addObjects([body11])
doc.recompute()

body12 = doc.addObject("PartDesign::Body", "Body011")
body12.BaseFeature = body9
boolean3 = body3.newObject("PartDesign::Boolean", "Boolean002")
boolean3.Type = "Cut"
boolean3.addObjects([body12])
doc.recompute()

body13 = doc.addObject("PartDesign::Body", "Body012")
body13.BaseFeature = body9
boolean4 = body4.newObject("PartDesign::Boolean", "Boolean003")
boolean4.Type = "Cut"
boolean4.addObjects([body13])
doc.recompute()

body14 = doc.addObject("PartDesign::Body", "Body013")
body14.BaseFeature = body9
boolean5 = body5.newObject("PartDesign::Boolean", "Boolean004")
boolean5.Type = "Cut"
boolean5.addObjects([body14])
doc.recompute()

boolean6 = body6.newObject("PartDesign::Boolean", "Boolean005")
boolean6.Type = "Cut"
boolean6.addObjects([body9])

doc.recompute()
